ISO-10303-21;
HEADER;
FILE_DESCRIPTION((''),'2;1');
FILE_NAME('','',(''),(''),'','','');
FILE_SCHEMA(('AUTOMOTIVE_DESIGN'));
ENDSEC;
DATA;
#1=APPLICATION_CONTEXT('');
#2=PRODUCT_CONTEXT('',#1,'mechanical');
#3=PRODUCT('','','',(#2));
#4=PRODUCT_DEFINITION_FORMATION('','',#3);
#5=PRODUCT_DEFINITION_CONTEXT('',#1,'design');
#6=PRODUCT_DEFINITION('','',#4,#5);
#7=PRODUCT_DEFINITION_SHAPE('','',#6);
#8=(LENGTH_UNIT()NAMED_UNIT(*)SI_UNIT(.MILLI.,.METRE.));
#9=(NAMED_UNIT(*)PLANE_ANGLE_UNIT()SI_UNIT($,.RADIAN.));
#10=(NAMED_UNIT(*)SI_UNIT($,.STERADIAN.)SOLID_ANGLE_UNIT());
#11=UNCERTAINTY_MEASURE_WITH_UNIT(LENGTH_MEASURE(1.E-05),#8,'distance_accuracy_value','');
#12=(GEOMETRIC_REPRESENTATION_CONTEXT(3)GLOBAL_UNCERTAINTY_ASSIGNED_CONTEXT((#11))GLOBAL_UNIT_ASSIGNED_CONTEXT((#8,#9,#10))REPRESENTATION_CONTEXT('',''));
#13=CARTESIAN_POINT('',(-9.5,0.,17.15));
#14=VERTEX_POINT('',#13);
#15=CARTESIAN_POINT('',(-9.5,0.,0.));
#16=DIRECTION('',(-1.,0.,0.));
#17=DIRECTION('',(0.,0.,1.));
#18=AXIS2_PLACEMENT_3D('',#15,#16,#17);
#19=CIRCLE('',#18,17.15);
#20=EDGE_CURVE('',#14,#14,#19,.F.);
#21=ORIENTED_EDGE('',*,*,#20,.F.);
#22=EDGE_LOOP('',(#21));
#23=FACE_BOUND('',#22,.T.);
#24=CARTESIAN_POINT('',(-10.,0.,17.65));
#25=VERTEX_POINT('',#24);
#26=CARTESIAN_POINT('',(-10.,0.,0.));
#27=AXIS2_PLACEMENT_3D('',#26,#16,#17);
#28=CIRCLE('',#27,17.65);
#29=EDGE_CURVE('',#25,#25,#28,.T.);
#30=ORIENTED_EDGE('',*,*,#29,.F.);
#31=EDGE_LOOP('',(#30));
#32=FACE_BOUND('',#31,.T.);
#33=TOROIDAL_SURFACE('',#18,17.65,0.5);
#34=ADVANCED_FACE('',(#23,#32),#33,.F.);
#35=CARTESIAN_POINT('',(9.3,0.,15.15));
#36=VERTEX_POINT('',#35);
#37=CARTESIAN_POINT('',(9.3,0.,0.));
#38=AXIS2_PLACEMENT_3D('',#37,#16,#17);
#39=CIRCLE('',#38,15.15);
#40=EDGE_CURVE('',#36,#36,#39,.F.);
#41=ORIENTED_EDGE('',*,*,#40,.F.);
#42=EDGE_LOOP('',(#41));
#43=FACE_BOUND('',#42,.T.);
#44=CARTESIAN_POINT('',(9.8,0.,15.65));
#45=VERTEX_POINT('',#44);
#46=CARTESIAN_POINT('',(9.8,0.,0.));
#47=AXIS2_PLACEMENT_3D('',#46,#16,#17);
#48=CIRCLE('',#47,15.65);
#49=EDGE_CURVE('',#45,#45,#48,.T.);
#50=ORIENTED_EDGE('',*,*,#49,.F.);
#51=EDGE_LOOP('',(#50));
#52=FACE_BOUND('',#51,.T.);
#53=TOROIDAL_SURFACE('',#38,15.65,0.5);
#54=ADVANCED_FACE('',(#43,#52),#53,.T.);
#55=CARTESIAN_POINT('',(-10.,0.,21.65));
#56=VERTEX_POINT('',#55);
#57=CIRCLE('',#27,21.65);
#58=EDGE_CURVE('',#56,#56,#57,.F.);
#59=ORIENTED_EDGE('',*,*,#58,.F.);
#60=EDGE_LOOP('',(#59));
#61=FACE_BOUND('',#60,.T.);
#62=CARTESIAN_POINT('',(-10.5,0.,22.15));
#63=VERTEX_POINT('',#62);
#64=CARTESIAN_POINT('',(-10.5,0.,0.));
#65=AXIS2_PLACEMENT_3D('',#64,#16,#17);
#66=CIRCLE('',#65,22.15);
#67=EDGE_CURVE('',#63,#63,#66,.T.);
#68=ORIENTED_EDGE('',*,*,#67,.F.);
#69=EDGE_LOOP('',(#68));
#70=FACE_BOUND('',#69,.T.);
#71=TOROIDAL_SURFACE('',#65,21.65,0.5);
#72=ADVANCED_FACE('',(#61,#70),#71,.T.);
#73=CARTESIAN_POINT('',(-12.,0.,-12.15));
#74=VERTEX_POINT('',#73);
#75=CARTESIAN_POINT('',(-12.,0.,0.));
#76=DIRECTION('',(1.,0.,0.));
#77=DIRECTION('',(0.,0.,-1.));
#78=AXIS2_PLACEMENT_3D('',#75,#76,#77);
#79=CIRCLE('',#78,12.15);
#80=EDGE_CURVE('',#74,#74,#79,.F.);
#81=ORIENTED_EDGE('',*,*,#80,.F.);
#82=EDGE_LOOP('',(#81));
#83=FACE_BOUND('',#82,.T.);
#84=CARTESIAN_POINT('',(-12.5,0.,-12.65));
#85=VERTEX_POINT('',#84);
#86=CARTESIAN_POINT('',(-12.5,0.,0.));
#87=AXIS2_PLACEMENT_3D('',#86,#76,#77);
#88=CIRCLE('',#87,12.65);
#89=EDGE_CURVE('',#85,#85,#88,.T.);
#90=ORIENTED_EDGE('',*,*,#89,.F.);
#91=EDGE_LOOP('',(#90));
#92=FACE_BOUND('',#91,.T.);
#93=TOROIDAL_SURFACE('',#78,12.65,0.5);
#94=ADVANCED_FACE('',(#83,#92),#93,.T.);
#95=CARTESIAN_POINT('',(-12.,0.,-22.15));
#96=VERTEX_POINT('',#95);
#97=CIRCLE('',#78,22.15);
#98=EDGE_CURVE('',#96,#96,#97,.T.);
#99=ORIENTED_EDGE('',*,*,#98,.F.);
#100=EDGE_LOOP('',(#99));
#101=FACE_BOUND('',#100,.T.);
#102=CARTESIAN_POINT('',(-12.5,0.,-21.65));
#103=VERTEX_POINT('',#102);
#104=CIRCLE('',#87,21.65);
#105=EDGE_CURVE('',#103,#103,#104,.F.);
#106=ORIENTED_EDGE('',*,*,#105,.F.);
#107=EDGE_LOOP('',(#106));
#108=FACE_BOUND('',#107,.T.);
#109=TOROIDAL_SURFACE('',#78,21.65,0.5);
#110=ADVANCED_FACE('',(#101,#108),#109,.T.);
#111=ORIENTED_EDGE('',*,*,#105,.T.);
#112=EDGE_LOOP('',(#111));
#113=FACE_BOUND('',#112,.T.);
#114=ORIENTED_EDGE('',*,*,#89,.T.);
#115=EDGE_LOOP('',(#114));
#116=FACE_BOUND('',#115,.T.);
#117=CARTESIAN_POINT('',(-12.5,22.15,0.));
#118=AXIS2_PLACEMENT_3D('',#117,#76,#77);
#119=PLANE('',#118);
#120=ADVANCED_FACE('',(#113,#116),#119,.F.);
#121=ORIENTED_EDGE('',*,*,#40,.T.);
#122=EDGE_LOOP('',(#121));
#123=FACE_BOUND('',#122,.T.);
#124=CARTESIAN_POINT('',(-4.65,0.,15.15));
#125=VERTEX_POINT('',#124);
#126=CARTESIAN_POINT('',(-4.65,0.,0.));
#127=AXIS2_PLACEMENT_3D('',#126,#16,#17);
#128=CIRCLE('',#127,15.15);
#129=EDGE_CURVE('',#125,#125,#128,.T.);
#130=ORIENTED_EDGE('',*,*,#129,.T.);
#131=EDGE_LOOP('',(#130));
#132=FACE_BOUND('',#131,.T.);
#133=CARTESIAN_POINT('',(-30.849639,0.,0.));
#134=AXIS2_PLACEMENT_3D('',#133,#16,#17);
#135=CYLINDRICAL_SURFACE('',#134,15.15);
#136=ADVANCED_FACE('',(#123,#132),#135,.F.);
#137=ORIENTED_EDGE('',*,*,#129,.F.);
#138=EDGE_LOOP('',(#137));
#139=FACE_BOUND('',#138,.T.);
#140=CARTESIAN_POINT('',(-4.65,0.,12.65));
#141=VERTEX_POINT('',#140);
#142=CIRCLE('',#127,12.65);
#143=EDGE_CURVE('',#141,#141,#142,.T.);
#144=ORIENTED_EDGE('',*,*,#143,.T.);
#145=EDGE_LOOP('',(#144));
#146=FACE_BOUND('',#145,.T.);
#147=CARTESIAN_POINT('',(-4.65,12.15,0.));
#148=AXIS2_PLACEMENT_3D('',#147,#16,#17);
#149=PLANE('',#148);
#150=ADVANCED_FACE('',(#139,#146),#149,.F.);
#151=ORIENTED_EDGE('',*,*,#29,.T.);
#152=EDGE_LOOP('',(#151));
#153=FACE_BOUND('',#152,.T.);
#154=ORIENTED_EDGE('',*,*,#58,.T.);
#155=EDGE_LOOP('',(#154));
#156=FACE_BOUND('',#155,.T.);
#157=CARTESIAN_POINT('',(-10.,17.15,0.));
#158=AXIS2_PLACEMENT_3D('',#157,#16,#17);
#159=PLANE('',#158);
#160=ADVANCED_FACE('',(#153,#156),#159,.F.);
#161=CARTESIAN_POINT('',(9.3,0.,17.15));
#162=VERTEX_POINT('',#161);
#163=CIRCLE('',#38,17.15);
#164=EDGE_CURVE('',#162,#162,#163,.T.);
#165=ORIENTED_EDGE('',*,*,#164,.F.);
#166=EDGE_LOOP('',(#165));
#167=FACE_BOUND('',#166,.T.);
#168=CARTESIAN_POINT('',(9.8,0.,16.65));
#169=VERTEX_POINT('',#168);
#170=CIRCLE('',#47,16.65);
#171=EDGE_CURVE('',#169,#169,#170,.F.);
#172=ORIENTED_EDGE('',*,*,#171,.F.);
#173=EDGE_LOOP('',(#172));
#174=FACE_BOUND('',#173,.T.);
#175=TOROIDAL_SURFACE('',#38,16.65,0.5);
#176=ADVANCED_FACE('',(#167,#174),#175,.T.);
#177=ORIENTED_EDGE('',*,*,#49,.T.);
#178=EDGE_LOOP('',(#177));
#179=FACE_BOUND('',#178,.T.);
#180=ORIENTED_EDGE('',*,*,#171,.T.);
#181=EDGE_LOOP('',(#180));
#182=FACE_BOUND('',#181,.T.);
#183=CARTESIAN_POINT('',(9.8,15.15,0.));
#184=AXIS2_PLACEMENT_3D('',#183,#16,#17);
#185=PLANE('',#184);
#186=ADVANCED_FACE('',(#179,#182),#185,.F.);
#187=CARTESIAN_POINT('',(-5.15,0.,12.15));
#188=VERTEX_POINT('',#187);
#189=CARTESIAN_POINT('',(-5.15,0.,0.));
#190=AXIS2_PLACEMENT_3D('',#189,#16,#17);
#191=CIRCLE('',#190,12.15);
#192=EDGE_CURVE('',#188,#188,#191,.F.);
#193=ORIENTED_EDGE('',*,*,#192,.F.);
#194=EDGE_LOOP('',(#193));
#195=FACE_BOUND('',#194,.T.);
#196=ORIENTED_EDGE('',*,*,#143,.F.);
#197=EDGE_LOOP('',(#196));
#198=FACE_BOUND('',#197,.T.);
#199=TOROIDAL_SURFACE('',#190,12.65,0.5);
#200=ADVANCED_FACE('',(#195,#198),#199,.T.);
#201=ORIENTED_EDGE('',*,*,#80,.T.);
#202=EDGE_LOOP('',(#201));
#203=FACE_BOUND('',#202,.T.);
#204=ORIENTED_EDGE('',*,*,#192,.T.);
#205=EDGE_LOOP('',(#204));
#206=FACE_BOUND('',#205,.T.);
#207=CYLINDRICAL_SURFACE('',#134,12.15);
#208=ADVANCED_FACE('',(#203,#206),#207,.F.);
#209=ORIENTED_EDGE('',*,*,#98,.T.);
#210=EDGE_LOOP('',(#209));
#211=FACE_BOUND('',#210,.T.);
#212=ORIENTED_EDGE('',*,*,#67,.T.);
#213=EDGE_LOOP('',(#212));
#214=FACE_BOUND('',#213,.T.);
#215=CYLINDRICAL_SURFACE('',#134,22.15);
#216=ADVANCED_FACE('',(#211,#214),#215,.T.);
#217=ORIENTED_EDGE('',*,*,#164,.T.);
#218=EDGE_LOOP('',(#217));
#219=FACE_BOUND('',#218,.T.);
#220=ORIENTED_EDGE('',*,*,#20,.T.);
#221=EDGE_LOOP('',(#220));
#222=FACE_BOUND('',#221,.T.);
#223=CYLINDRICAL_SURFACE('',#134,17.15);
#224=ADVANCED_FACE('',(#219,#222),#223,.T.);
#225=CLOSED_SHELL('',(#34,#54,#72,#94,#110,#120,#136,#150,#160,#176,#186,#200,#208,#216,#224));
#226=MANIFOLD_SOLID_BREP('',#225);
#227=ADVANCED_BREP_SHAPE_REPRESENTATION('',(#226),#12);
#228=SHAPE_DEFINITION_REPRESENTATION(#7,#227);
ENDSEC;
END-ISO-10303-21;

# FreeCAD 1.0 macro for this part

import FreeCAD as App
import Part
import Sketcher

V = App.Vector
Q = App.Units.Quantity


def edges_at(feature, points):
    """Names of the edges that pass closest to the given points."""
    edges = feature.Shape.Edges
    near = lambda p: min(range(len(edges)), key=lambda i: edges[i].distToShape(Part.Vertex(*p))[0])
    return sorted({f"Edge{near(p) + 1}" for p in points})


def add_polygon(sketch, points):
    """Adds a closed chain of lines whose ends are joined by coincident constraints."""
    first, n = sketch.GeometryCount, len(points)
    for a, b in zip(points, points[1:] + points[:1]):
        sketch.addGeometry(Part.LineSegment(App.Vector(*a, 0), App.Vector(*b, 0)), False)
    for i in range(n):
        sketch.addConstraint(Sketcher.Constraint("Coincident", first + i, 2, first + (i + 1) % n, 1))

doc = App.newDocument("Part")
body = doc.addObject("PartDesign::Body", "Body")

sketch1 = body.newObject("Sketcher::SketchObject", "Sketch")
sketch1.AttachmentSupport = (doc.getObject("XY_Plane"), [""])
sketch1.MapMode = "FlatFace"
add_polygon(sketch1, [(-12.5, 22.1), (-12.5, 12.2), (-4.7, 12.2), (-4.7, 15.2), (9.8, 15.2), (9.8, 17.1), (-10, 17.1), (-10, 22.1)])
sketch1.addConstraint(Sketcher.Constraint("Vertical", 0))
sketch1.addConstraint(Sketcher.Constraint("Horizontal", 1))
sketch1.addConstraint(Sketcher.Constraint("Vertical", 2))
sketch1.addConstraint(Sketcher.Constraint("Horizontal", 3))
sketch1.addConstraint(Sketcher.Constraint("Vertical", 4))
sketch1.addConstraint(Sketcher.Constraint("Horizontal", 5))
sketch1.addConstraint(Sketcher.Constraint("Vertical", 6))
sketch1.addConstraint(Sketcher.Constraint("Horizontal", 7))
sketch1.addConstraint(Sketcher.Constraint("DistanceY", 0, 2, 0, 1, Q("10 mm")))
sketch1.addConstraint(Sketcher.Constraint("DistanceY", 2, 1, 2, 2, Q("3 mm")))
sketch1.addConstraint(Sketcher.Constraint("DistanceY", 4, 1, 4, 2, Q("2 mm")))
sketch1.addConstraint(Sketcher.Constraint("DistanceX", 5, 2, 5, 1, Q("19.8 mm")))
sketch1.addConstraint(Sketcher.Constraint("DistanceX", 7, 2, 7, 1, Q("2.5 mm")))
sketch1.addConstraint(Sketcher.Constraint("DistanceX", 5, 2, -1, 1, Q("10 mm")))
sketch1.addConstraint(Sketcher.Constraint("DistanceX", 1, 1, 1, 2, Q("7.85 mm")))
sketch1.addConstraint(Sketcher.Constraint("DistanceY", -1, 1, 0, 2, Q("12.15 mm")))
revolution = body.newObject("PartDesign::Revolution", "Revolution")
revolution.Profile = sketch1
revolution.ReferenceAxis = (sketch1, ["H_Axis"])
revolution.Angle = 360
doc.recompute()

fillet = body.newObject("PartDesign::Fillet", "Fillet")
fillet.Base = (revolution, edges_at(revolution, [
    (-12.5, 0, -22.15),
    (-10, 0, -22.15),
    (-10, 0, -17.15),
    (9.8, 0, -17.15),
    (9.8, 0, -15.15),
    (-4.65, 0, -12.15),
    (-12.5, 0, -12.15),
]))
fillet.Radius = 0.5

doc.recompute()
